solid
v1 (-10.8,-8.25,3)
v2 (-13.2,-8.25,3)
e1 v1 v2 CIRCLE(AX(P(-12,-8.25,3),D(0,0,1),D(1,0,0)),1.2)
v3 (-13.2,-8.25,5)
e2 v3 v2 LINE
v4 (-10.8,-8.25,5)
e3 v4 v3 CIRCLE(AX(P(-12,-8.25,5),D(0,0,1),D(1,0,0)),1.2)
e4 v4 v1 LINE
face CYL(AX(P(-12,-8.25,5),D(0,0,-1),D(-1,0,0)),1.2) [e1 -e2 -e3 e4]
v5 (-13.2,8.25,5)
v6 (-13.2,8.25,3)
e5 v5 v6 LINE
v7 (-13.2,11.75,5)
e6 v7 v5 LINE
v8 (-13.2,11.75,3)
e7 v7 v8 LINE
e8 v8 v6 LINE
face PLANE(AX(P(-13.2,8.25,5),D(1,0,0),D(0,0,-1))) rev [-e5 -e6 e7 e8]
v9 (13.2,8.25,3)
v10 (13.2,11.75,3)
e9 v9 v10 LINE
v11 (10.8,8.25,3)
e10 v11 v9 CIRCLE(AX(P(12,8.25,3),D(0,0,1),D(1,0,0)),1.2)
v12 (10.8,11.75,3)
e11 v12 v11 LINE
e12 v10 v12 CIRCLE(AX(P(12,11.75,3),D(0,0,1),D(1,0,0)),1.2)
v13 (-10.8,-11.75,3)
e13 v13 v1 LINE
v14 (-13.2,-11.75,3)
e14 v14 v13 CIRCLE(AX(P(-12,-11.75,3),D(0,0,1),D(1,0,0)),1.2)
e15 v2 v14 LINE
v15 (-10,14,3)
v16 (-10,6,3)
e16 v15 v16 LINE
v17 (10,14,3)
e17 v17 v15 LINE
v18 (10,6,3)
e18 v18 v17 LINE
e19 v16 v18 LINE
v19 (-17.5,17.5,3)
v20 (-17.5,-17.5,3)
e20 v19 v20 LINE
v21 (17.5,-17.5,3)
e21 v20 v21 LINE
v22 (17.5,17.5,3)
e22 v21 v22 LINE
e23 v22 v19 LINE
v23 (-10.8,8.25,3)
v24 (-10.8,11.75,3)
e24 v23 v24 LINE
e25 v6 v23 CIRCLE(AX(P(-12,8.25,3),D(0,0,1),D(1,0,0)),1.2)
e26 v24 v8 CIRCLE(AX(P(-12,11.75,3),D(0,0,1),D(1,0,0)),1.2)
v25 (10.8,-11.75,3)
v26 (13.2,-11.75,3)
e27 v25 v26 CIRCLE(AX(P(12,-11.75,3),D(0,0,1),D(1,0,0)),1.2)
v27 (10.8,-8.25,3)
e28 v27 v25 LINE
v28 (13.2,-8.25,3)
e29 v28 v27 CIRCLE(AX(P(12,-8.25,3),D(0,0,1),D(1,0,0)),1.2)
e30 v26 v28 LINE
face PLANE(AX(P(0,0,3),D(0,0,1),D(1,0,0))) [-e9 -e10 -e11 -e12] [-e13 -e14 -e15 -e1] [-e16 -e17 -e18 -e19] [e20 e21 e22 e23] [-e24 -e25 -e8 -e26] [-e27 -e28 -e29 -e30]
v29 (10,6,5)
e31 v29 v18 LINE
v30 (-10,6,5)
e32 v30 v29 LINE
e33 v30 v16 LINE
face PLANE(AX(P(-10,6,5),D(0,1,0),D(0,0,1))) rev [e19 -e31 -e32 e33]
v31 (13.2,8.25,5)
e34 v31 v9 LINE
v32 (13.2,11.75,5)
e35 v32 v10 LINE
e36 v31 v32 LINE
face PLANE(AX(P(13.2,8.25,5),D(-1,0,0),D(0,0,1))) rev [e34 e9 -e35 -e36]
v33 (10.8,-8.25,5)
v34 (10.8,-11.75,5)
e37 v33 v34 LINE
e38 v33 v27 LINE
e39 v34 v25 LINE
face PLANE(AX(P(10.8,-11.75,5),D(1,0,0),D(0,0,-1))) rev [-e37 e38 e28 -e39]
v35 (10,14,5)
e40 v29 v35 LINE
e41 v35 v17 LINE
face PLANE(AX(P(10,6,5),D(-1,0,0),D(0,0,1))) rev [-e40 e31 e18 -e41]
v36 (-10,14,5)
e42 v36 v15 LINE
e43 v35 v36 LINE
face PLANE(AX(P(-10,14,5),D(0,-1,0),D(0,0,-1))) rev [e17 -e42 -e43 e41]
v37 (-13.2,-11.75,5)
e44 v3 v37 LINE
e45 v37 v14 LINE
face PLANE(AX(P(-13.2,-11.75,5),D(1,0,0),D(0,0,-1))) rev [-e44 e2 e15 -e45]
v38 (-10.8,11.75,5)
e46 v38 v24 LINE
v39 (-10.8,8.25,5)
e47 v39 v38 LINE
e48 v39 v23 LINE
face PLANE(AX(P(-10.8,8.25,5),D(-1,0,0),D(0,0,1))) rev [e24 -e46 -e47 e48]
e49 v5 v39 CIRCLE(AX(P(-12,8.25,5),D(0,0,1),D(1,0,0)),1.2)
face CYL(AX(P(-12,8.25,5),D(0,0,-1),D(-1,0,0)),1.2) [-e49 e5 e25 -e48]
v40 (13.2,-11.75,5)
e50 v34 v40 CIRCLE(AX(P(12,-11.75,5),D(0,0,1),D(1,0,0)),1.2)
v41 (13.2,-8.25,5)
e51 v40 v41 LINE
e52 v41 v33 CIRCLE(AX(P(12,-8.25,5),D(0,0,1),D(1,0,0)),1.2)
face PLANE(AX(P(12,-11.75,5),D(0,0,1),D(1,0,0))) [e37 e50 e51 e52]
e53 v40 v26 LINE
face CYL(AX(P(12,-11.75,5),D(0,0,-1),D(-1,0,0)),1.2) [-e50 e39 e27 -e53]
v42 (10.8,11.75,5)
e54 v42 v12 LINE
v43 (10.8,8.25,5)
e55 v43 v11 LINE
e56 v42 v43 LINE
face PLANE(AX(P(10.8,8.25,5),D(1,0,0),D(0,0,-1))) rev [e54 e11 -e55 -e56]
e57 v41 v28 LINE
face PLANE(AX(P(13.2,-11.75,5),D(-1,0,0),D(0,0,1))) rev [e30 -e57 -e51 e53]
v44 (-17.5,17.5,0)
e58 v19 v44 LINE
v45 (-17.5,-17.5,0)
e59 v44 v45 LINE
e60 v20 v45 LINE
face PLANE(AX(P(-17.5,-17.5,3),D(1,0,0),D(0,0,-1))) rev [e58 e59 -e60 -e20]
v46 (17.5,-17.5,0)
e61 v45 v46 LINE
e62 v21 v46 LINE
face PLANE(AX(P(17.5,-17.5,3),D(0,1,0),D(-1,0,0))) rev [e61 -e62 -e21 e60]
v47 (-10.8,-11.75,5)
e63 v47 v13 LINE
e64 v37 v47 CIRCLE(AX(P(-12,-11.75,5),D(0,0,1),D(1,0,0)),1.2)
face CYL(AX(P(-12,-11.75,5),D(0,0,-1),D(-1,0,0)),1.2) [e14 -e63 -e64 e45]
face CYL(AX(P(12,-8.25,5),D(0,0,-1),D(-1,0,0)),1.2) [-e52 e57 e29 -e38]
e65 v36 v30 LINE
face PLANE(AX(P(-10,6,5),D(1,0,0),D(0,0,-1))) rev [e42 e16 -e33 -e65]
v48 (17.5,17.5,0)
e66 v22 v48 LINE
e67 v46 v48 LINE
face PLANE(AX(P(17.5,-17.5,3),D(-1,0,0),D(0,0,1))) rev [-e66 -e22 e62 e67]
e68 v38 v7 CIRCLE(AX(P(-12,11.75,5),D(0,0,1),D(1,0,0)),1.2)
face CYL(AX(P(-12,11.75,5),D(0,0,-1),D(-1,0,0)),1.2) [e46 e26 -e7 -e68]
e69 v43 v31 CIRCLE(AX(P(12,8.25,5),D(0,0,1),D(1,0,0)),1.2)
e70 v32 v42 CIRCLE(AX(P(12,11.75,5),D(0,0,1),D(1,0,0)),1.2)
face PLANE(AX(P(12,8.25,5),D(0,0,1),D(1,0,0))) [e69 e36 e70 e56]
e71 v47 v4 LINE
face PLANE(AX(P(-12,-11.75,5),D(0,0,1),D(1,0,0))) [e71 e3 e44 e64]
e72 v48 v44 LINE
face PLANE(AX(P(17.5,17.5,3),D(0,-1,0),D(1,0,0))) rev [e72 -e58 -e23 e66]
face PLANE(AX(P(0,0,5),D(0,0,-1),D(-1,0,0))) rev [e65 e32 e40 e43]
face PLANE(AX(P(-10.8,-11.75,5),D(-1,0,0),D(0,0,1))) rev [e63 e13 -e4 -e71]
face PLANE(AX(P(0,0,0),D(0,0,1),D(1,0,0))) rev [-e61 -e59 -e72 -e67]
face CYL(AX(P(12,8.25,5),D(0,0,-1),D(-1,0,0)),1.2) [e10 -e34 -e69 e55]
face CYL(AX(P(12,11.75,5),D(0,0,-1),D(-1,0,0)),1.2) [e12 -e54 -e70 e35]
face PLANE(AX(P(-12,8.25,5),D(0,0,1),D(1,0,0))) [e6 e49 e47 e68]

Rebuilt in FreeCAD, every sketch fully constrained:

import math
import FreeCAD as App
import Part
import Sketcher
from FreeCAD import Vector
Q = App.Units.Quantity


def add_polygon(sketch, points):
    """Adds a closed chain of lines whose ends are joined by coincident constraints."""
    first, n = sketch.GeometryCount, len(points)
    for a, b in zip(points, points[1:] + points[:1]):
        sketch.addGeometry(Part.LineSegment(App.Vector(*a, 0), App.Vector(*b, 0)), False)
    for i in range(n):
        sketch.addConstraint(Sketcher.Constraint("Coincident", first + i, 2, first + (i + 1) % n, 1))

doc = App.newDocument("Part")
body = doc.addObject("PartDesign::Body", "Body")

sketch1 = body.newObject("Sketcher::SketchObject", "Sketch")
sketch1.AttachmentSupport = (doc.getObject("XY_Plane"), [""])
sketch1.MapMode = "FlatFace"
add_polygon(sketch1, [(-17.5, 17.5), (-17.5, -17.5), (17.5, -17.5), (17.5, 17.5)])
sketch1.addConstraint([
    Sketcher.Constraint("Vertical", 0),
    Sketcher.Constraint("Horizontal", 1),
    Sketcher.Constraint("Vertical", 2),
    Sketcher.Constraint("Horizontal", 3),
    Sketcher.Constraint("Symmetric", 0, 2, 2, 2, -1, 1),
    Sketcher.Constraint("Equal", 3, 0),
    Sketcher.Constraint("DistanceX", 1, 1, 1, 2, Q("35 mm")),
])
pad1 = body.newObject("PartDesign::Pad", "Pad")
pad1.Profile = sketch1
pad1.Length = 3

sketch2 = body.newObject("Sketcher::SketchObject", "Sketch001")
sketch2.AttachmentSupport = (doc.getObject("XY_Plane"), [""])
sketch2.MapMode = "FlatFace"
sketch2.AttachmentOffset = App.Placement(Vector(0, 0, 3), App.Rotation())
sketch2.addGeometry(Part.LineSegment(Vector(-13.2, 11.75, 0), Vector(-13.2, 8.25, 0)), False)
sketch2.addGeometry(Part.ArcOfCircle(Part.Circle(Vector(-12, 8.25, 0), Vector(0, 0, 1), 1.2), math.radians(180), math.radians(360)), False)
sketch2.addGeometry(Part.LineSegment(Vector(-10.8, 8.25, 0), Vector(-10.8, 11.75, 0)), False)
sketch2.addGeometry(Part.ArcOfCircle(Part.Circle(Vector(-12, 11.75, 0), Vector(0, 0, 1), 1.2), math.radians(0), math.radians(180)), False)
sketch2.addGeometry(Part.LineSegment(Vector(-13.2, -8.25, 0), Vector(-13.2, -11.75, 0)), False)
sketch2.addGeometry(Part.ArcOfCircle(Part.Circle(Vector(-12, -11.75, 0), Vector(0, 0, 1), 1.2), math.radians(180), math.radians(360)), False)
sketch2.addGeometry(Part.LineSegment(Vector(-10.8, -11.75, 0), Vector(-10.8, -8.25, 0)), False)
sketch2.addGeometry(Part.ArcOfCircle(Part.Circle(Vector(-12, -8.25, 0), Vector(0, 0, 1), 1.2), math.radians(0), math.radians(180)), False)
sketch2.addGeometry(Part.LineSegment(Vector(10.8, -8.25, 0), Vector(10.8, -11.75, 0)), False)
sketch2.addGeometry(Part.ArcOfCircle(Part.Circle(Vector(12, -11.75, 0), Vector(0, 0, 1), 1.2), math.radians(180), math.radians(360)), False)
sketch2.addGeometry(Part.LineSegment(Vector(13.2, -11.75, 0), Vector(13.2, -8.25, 0)), False)
sketch2.addGeometry(Part.ArcOfCircle(Part.Circle(Vector(12, -8.25, 0), Vector(0, 0, 1), 1.2), math.radians(0), math.radians(180)), False)
sketch2.addGeometry(Part.LineSegment(Vector(10.8, 11.75, 0), Vector(10.8, 8.25, 0)), False)
sketch2.addGeometry(Part.ArcOfCircle(Part.Circle(Vector(12, 8.25, 0), Vector(0, 0, 1), 1.2), math.radians(180), math.radians(360)), False)
sketch2.addGeometry(Part.LineSegment(Vector(13.2, 8.25, 0), Vector(13.2, 11.75, 0)), False)
sketch2.addGeometry(Part.ArcOfCircle(Part.Circle(Vector(12, 11.75, 0), Vector(0, 0, 1), 1.2), math.radians(0), math.radians(180)), False)
add_polygon(sketch2, [(-10, 14), (-10, 6), (10, 6), (10, 14)])
sketch2.addConstraint([
    Sketcher.Constraint("Tangent", 0, 2, 1, 1),
    Sketcher.Constraint("Tangent", 1, 2, 2, 1),
    Sketcher.Constraint("Tangent", 2, 2, 3, 1),
    Sketcher.Constraint("Tangent", 3, 2, 0, 1),
    Sketcher.Constraint("Tangent", 4, 2, 5, 1),
    Sketcher.Constraint("Tangent", 5, 2, 6, 1),
    Sketcher.Constraint("Tangent", 6, 2, 7, 1),
    Sketcher.Constraint("Tangent", 7, 2, 4, 1),
    Sketcher.Constraint("Tangent", 8, 2, 9, 1),
    Sketcher.Constraint("Tangent", 9, 2, 10, 1),
    Sketcher.Constraint("Tangent", 10, 2, 11, 1),
    Sketcher.Constraint("Tangent", 11, 2, 8, 1),
    Sketcher.Constraint("Tangent", 12, 2, 13, 1),
    Sketcher.Constraint("Tangent", 13, 2, 14, 1),
    Sketcher.Constraint("Tangent", 14, 2, 15, 1),
    Sketcher.Constraint("Tangent", 15, 2, 12, 1),
    Sketcher.Constraint("Vertical", 0),
    Sketcher.Constraint("Vertical", 2),
    Sketcher.Constraint("Vertical", 4),
    Sketcher.Constraint("Vertical", 6),
    Sketcher.Constraint("Vertical", 8),
    Sketcher.Constraint("Vertical", 10),
    Sketcher.Constraint("Vertical", 12),
    Sketcher.Constraint("Vertical", 14),
    Sketcher.Constraint("Vertical", 16),
    Sketcher.Constraint("Horizontal", 17),
    Sketcher.Constraint("Vertical", 18),
    Sketcher.Constraint("Horizontal", 19),
    Sketcher.Constraint("Equal", 3, 5),
    Sketcher.Constraint("Equal", 7, 9),
    Sketcher.Constraint("Equal", 11, 13),
    Sketcher.Constraint("Symmetric", 3, 3, 9, 3, -1, 1),
    Sketcher.Constraint("Symmetric", 7, 3, 13, 3, -1, 1),
    Sketcher.Constraint("Symmetric", 5, 3, 9, 3, -2),
    Sketcher.Constraint("Horizontal", 7, 3, 11, 3),
    Sketcher.Constraint("Horizontal", 1, 3, 13, 3),
    Sketcher.Constraint("Horizontal", 3, 3, 15, 3),
    Sketcher.Constraint("Radius", 1, Q("1.2 mm")),
    Sketcher.Constraint("DistanceX", 17, 1, 17, 2, Q("20 mm")),
    Sketcher.Constraint("DistanceY", 16, 2, 16, 1, Q("8 mm")),
    Sketcher.Constraint("DistanceY", 0, 2, 0, 1, Q("3.5 mm")),
    Sketcher.Constraint("DistanceX", 1, 3, -1, 1, Q("12 mm")),
    Sketcher.Constraint("DistanceX", 16, 2, -1, 1, Q("10 mm")),
    Sketcher.Constraint("DistanceY", -1, 1, 16, 2, Q("6 mm")),
    Sketcher.Constraint("DistanceY", 5, 3, 1, 3, Q("20 mm")),
])
pad2 = body.newObject("PartDesign::Pad", "Pad001")
pad2.Profile = sketch2
pad2.Length = 2

doc.recompute()
